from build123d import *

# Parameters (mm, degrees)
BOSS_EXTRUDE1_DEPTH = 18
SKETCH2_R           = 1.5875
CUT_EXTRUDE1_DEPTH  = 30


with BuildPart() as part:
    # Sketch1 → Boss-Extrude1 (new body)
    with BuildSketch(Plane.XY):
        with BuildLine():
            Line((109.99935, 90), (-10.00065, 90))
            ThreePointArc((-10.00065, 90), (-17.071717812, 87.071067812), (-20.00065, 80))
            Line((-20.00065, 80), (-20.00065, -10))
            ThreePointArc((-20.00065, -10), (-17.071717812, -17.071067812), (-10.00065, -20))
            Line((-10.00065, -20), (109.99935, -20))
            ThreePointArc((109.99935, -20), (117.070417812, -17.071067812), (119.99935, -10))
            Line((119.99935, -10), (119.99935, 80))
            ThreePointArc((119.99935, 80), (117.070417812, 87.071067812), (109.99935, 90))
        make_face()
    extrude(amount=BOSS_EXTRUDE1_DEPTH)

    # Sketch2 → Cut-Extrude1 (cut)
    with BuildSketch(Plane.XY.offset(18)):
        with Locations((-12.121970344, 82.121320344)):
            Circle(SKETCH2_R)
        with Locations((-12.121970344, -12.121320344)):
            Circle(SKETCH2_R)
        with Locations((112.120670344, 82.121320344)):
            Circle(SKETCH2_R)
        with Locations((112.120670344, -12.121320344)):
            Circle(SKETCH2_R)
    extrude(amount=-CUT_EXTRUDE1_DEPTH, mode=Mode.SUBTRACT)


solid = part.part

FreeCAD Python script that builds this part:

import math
import FreeCAD as App
import Part
import Sketcher
Q = App.Units.Quantity

doc = App.newDocument("Part")
body = doc.addObject("PartDesign::Body", "Body")

# Sketch on XY plane
sketch1 = body.newObject("Sketcher::SketchObject", "Sketch")
sketch1.AttachmentSupport = (doc.getObject("XY_Plane"), [""])
sketch1.MapMode = "FlatFace"
sketch1.addGeometry([
    Part.LineSegment(App.Vector(110, 90, 0), App.Vector(-10, 90, 0)),  # 0
    Part.ArcOfCircle(Part.Circle(App.Vector(-10, 80, 0), App.Vector(0, 0, 1), 10), math.radians(90), math.radians(180)),  # 1
    Part.LineSegment(App.Vector(-20, 80, 0), App.Vector(-20, -10, 0)),  # 2
    Part.ArcOfCircle(Part.Circle(App.Vector(-10, -10, 0), App.Vector(0, 0, 1), 10), math.radians(180), math.radians(270)),  # 3
    Part.LineSegment(App.Vector(-10, -20, 0), App.Vector(110, -20, 0)),  # 4
    Part.ArcOfCircle(Part.Circle(App.Vector(110, -10, 0), App.Vector(0, 0, 1), 10), math.radians(-90), math.radians(0)),  # 5
    Part.LineSegment(App.Vector(120, -10, 0), App.Vector(120, 80, 0)),  # 6
    Part.ArcOfCircle(Part.Circle(App.Vector(110, 80, 0), App.Vector(0, 0, 1), 10), math.radians(0), math.radians(90)),  # 7
], False)
sketch1.addConstraint([
    Sketcher.Constraint("Tangent", 0, 2, 1, 1),
    Sketcher.Constraint("Tangent", 1, 2, 2, 1),
    Sketcher.Constraint("Tangent", 2, 2, 3, 1),
    Sketcher.Constraint("Tangent", 3, 2, 4, 1),
    Sketcher.Constraint("Tangent", 4, 2, 5, 1),
    Sketcher.Constraint("Tangent", 5, 2, 6, 1),
    Sketcher.Constraint("Tangent", 6, 2, 7, 1),
    Sketcher.Constraint("Tangent", 7, 2, 0, 1),
    Sketcher.Constraint("Horizontal", 0),
    Sketcher.Constraint("Vertical", 2),
    Sketcher.Constraint("Horizontal", 4),
    Sketcher.Constraint("Vertical", 6),
    Sketcher.Constraint("Equal", 1, 3),
    Sketcher.Constraint("Equal", 3, 5),
    Sketcher.Constraint("Equal", 5, 7),
    Sketcher.Constraint("Radius", 1, Q("10 mm")),
    Sketcher.Constraint("DistanceX", 0, 2, 0, 1, Q("120 mm")),
    Sketcher.Constraint("DistanceY", 2, 2, 2, 1, Q("90 mm")),
    Sketcher.Constraint("DistanceY", -1, 1, 1, 3, Q("80 mm")),
    Sketcher.Constraint("DistanceX", 1, 3, -1, 1, Q("10.00065 mm")),
])
pad1 = body.newObject("PartDesign::Pad", "Pad")
pad1.Profile = sketch1
pad1.Length = 18

# Sketch on XY plane
sketch2 = body.newObject("Sketcher::SketchObject", "Sketch001")
sketch2.AttachmentSupport = (doc.getObject("XY_Plane"), [""])
sketch2.MapMode = "FlatFace"
sketch2.AttachmentOffset = App.Placement(App.Vector(0, 0, 18), App.Rotation())
sketch2.addGeometry([
    Part.Circle(App.Vector(-12.1, 82.1, 0), App.Vector(0, 0, 1), 1.6),
    Part.Circle(App.Vector(-12.1, -12.1, 0), App.Vector(0, 0, 1), 1.6),
    Part.Circle(App.Vector(112.1, 82.1, 0), App.Vector(0, 0, 1), 1.6),
    Part.Circle(App.Vector(112.1, -12.1, 0), App.Vector(0, 0, 1), 1.6),
], False)
sketch2.addConstraint([
    Sketcher.Constraint("Equal", 0, 1),
    Sketcher.Constraint("Equal", 1, 2),
    Sketcher.Constraint("Equal", 2, 3),
    Sketcher.Constraint("Horizontal", 0, 3, 2, 3),
    Sketcher.Constraint("Horizontal", 1, 3, 3, 3),
    Sketcher.Constraint("Vertical", 0, 3, 1, 3),
    Sketcher.Constraint("Vertical", 2, 3, 3, 3),
    Sketcher.Constraint("Diameter", 0, Q("3.175 mm")),
    Sketcher.Constraint("DistanceX", 0, 3, -1, 1, Q("12.12197 mm")),
    Sketcher.Constraint("DistanceY", -1, 1, 0, 3, Q("82.12132 mm")),
    Sketcher.Constraint("DistanceY", 1, 3, -1, 1, Q("12.12132 mm")),
    Sketcher.Constraint("DistanceX", -1, 1, 2, 3, Q("112.12067 mm")),
])
pocket1 = body.newObject("PartDesign::Pocket", "Pocket")
pocket1.Profile = sketch2
pocket1.Length = 30

doc.recompute()
